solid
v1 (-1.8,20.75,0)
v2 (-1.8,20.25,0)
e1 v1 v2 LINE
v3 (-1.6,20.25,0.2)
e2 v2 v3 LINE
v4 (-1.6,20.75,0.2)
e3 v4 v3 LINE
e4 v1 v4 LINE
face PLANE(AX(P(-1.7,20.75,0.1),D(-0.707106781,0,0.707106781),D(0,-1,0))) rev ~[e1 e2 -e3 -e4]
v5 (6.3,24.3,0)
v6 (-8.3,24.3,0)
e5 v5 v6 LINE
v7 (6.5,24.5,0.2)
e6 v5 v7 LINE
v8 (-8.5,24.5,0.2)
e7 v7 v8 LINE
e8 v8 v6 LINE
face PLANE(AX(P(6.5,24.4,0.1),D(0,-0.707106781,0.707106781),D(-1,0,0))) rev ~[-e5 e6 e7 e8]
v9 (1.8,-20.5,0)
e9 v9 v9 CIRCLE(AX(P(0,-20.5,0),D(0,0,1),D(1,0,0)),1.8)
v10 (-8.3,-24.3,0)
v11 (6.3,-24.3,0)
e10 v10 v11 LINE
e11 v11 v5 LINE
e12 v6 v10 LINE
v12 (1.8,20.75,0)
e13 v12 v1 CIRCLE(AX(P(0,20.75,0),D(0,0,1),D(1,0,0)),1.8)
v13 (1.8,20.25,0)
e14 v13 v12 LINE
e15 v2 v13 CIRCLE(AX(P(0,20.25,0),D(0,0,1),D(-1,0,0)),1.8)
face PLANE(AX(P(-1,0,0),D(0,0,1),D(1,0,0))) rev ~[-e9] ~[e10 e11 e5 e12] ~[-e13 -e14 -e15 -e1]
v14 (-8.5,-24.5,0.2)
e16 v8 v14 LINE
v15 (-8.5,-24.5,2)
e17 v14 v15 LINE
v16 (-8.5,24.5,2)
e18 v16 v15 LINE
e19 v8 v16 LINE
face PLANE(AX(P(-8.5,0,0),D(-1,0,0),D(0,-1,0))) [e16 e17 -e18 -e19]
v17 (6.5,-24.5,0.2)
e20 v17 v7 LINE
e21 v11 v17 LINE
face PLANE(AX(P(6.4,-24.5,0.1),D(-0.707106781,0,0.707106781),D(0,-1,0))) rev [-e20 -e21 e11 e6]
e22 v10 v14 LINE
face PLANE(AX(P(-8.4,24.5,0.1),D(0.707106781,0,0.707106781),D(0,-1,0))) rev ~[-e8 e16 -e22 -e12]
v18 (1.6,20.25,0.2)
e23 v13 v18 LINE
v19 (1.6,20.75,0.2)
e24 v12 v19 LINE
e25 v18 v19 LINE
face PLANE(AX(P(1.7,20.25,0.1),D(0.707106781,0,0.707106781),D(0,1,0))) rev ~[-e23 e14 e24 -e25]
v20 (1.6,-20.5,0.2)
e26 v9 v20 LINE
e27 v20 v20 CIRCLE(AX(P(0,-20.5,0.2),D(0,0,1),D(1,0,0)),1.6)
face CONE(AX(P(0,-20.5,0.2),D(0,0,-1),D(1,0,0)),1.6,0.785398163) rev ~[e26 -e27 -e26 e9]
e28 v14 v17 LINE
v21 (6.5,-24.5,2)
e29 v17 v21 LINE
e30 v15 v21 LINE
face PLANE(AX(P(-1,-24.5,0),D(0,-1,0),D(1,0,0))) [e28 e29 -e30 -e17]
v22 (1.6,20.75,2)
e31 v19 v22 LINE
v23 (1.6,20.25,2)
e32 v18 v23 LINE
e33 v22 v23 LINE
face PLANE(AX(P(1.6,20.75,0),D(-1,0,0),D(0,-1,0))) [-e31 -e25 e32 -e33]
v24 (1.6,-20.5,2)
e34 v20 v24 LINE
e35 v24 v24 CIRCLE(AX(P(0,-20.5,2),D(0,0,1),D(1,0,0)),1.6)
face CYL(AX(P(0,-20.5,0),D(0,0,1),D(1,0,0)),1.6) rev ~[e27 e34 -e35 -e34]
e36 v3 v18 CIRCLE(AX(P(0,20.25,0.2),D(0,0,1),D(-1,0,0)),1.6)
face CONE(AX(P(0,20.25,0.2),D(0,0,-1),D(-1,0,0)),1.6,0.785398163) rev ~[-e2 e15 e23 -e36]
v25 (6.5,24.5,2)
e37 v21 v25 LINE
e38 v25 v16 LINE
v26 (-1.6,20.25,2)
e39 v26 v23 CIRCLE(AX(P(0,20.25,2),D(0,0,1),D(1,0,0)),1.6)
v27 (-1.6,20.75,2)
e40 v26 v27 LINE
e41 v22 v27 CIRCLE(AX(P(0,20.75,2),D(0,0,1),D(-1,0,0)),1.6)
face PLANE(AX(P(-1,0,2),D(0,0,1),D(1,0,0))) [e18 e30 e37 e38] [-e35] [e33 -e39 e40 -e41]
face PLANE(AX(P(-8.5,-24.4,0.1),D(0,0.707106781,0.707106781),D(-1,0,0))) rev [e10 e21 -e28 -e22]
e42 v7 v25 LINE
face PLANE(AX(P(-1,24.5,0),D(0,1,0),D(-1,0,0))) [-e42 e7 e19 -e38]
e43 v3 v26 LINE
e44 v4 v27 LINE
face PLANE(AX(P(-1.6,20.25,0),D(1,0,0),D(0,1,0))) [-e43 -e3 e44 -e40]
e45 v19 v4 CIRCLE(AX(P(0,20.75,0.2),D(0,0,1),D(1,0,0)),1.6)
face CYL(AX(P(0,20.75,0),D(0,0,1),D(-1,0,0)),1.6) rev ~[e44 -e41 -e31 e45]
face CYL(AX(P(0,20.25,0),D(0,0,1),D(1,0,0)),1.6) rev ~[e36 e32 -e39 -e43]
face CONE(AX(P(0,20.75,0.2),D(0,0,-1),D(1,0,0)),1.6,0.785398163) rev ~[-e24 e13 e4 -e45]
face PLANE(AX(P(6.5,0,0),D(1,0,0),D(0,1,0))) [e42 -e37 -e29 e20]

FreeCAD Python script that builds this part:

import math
import FreeCAD as App
import Part
import Sketcher


def edges_at(feature, points):
    """Names of the edges that pass closest to the given points."""
    edges = feature.Shape.Edges
    near = lambda p: min(range(len(edges)), key=lambda i: edges[i].distToShape(Part.Vertex(*p))[0])
    return sorted({f"Edge{near(p) + 1}" for p in points})

doc = App.newDocument("Part")
body = doc.addObject("PartDesign::Body", "Body")

# Sketch on XY plane
sketch1 = body.newObject("Sketcher::SketchObject", "Sketch")
sketch1.AttachmentSupport = (doc.getObject("XY_Plane"), [""])
sketch1.MapMode = "FlatFace"
sketch1.addGeometry([
    Part.LineSegment(App.Vector(-8.5, 24.5, 0), App.Vector(-8.5, -24.5, 0)),  # 0
    Part.LineSegment(App.Vector(-8.5, -24.5, 0), App.Vector(6.5, -24.5, 0)),  # 1
    Part.LineSegment(App.Vector(6.5, -24.5, 0), App.Vector(6.5, 24.5, 0)),  # 2
    Part.LineSegment(App.Vector(6.5, 24.5, 0), App.Vector(-8.5, 24.5, 0)),  # 3
    Part.Circle(App.Vector(0, -20.5, 0), App.Vector(0, 0, 1), 1.6),  # 4
    Part.ArcOfCircle(Part.Circle(App.Vector(0, 20.25, 0), App.Vector(0, 0, 1), 1.6), math.radians(180), math.radians(360)),  # 5
    Part.LineSegment(App.Vector(-1.6, 20.25, 0), App.Vector(-1.6, 20.75, 0)),  # 6
    Part.ArcOfCircle(Part.Circle(App.Vector(0, 20.75, 0), App.Vector(0, 0, 1), 1.6), math.radians(0), math.radians(180)),  # 7
    Part.LineSegment(App.Vector(1.6, 20.75, 0), App.Vector(1.6, 20.25, 0)),  # 8
], False)
sketch1.addConstraint([
    Sketcher.Constraint("Coincident", 0, 2, 1, 1),
    Sketcher.Constraint("Coincident", 1, 2, 2, 1),
    Sketcher.Constraint("Coincident", 2, 2, 3, 1),
    Sketcher.Constraint("Coincident", 3, 2, 0, 1),
    Sketcher.Constraint("Tangent", 5, 1, 6, 1),
    Sketcher.Constraint("Tangent", 6, 2, 7, 2),
    Sketcher.Constraint("Tangent", 7, 1, 8, 1),
    Sketcher.Constraint("Tangent", 8, 2, 5, 2),
    Sketcher.Constraint("Vertical", 0),
    Sketcher.Constraint("Horizontal", 1),
    Sketcher.Constraint("Vertical", 2),
    Sketcher.Constraint("Horizontal", 3),
    Sketcher.Constraint("Vertical", 6),
    Sketcher.Constraint("Vertical", 8),
    Sketcher.Constraint("Equal", 4, 5),
    Sketcher.Constraint("PointOnObject", 4, 3, -2),
    Sketcher.Constraint("PointOnObject", 5, 3, -2),
    Sketcher.Constraint("Diameter", 4, 3.2),
    Sketcher.Constraint("DistanceX", 1, 1, 1, 2, 15.0),
    Sketcher.Constraint("DistanceY", 0, 2, 0, 1, 49.0),
    Sketcher.Constraint("DistanceY", 6, 1, 6, 2, 0.5),
    Sketcher.Constraint("DistanceY", 0, 2, 4, 3, 4.0),
    Sketcher.Constraint("DistanceY", 4, 3, -1, 1, 20.5),
    Sketcher.Constraint("DistanceX", 0, 2, -1, 1, 8.5),
    Sketcher.Constraint("DistanceY", -1, 1, 5, 3, 20.25),
])

# Sketch on XZ plane
sketch2 = body.newObject("Sketcher::SketchObject", "Sketch001")
sketch2.AttachmentSupport = (doc.getObject("XZ_Plane"), [""])
sketch2.MapMode = "FlatFace"
sketch2.addGeometry(Part.LineSegment(App.Vector(0, 0, 0), App.Vector(0, 2, 0)), False)
sketch2.addConstraint([
    Sketcher.Constraint("Vertical", 0),
    Sketcher.Constraint("Coincident", 0, 1, -1, 1),
    Sketcher.Constraint("DistanceY", 0, 1, 0, 2, 2.0),
])
doc.recompute()

additivepipe = body.newObject("PartDesign::AdditivePipe", "AdditivePipe")
additivepipe.Profile = sketch1
additivepipe.Spine = (sketch2, ["Edge1"])
doc.recompute()

chamfer = body.newObject("PartDesign::Chamfer", "Chamfer")
chamfer.Base = (additivepipe, edges_at(additivepipe, [
    (6.5, 0, 0),
    (-1, -24.5, 0),
    (-1, 24.5, 0),
    (-8.5, 0, 0),
    (-1.6, -20.5, 0),
    (0, 18.65, 0),
    (1.6, 20.5, 0),
    (0, 22.35, 0),
    (-1.6, 20.5, 0),
]))
chamfer.Size = 0.2

doc.recompute()
